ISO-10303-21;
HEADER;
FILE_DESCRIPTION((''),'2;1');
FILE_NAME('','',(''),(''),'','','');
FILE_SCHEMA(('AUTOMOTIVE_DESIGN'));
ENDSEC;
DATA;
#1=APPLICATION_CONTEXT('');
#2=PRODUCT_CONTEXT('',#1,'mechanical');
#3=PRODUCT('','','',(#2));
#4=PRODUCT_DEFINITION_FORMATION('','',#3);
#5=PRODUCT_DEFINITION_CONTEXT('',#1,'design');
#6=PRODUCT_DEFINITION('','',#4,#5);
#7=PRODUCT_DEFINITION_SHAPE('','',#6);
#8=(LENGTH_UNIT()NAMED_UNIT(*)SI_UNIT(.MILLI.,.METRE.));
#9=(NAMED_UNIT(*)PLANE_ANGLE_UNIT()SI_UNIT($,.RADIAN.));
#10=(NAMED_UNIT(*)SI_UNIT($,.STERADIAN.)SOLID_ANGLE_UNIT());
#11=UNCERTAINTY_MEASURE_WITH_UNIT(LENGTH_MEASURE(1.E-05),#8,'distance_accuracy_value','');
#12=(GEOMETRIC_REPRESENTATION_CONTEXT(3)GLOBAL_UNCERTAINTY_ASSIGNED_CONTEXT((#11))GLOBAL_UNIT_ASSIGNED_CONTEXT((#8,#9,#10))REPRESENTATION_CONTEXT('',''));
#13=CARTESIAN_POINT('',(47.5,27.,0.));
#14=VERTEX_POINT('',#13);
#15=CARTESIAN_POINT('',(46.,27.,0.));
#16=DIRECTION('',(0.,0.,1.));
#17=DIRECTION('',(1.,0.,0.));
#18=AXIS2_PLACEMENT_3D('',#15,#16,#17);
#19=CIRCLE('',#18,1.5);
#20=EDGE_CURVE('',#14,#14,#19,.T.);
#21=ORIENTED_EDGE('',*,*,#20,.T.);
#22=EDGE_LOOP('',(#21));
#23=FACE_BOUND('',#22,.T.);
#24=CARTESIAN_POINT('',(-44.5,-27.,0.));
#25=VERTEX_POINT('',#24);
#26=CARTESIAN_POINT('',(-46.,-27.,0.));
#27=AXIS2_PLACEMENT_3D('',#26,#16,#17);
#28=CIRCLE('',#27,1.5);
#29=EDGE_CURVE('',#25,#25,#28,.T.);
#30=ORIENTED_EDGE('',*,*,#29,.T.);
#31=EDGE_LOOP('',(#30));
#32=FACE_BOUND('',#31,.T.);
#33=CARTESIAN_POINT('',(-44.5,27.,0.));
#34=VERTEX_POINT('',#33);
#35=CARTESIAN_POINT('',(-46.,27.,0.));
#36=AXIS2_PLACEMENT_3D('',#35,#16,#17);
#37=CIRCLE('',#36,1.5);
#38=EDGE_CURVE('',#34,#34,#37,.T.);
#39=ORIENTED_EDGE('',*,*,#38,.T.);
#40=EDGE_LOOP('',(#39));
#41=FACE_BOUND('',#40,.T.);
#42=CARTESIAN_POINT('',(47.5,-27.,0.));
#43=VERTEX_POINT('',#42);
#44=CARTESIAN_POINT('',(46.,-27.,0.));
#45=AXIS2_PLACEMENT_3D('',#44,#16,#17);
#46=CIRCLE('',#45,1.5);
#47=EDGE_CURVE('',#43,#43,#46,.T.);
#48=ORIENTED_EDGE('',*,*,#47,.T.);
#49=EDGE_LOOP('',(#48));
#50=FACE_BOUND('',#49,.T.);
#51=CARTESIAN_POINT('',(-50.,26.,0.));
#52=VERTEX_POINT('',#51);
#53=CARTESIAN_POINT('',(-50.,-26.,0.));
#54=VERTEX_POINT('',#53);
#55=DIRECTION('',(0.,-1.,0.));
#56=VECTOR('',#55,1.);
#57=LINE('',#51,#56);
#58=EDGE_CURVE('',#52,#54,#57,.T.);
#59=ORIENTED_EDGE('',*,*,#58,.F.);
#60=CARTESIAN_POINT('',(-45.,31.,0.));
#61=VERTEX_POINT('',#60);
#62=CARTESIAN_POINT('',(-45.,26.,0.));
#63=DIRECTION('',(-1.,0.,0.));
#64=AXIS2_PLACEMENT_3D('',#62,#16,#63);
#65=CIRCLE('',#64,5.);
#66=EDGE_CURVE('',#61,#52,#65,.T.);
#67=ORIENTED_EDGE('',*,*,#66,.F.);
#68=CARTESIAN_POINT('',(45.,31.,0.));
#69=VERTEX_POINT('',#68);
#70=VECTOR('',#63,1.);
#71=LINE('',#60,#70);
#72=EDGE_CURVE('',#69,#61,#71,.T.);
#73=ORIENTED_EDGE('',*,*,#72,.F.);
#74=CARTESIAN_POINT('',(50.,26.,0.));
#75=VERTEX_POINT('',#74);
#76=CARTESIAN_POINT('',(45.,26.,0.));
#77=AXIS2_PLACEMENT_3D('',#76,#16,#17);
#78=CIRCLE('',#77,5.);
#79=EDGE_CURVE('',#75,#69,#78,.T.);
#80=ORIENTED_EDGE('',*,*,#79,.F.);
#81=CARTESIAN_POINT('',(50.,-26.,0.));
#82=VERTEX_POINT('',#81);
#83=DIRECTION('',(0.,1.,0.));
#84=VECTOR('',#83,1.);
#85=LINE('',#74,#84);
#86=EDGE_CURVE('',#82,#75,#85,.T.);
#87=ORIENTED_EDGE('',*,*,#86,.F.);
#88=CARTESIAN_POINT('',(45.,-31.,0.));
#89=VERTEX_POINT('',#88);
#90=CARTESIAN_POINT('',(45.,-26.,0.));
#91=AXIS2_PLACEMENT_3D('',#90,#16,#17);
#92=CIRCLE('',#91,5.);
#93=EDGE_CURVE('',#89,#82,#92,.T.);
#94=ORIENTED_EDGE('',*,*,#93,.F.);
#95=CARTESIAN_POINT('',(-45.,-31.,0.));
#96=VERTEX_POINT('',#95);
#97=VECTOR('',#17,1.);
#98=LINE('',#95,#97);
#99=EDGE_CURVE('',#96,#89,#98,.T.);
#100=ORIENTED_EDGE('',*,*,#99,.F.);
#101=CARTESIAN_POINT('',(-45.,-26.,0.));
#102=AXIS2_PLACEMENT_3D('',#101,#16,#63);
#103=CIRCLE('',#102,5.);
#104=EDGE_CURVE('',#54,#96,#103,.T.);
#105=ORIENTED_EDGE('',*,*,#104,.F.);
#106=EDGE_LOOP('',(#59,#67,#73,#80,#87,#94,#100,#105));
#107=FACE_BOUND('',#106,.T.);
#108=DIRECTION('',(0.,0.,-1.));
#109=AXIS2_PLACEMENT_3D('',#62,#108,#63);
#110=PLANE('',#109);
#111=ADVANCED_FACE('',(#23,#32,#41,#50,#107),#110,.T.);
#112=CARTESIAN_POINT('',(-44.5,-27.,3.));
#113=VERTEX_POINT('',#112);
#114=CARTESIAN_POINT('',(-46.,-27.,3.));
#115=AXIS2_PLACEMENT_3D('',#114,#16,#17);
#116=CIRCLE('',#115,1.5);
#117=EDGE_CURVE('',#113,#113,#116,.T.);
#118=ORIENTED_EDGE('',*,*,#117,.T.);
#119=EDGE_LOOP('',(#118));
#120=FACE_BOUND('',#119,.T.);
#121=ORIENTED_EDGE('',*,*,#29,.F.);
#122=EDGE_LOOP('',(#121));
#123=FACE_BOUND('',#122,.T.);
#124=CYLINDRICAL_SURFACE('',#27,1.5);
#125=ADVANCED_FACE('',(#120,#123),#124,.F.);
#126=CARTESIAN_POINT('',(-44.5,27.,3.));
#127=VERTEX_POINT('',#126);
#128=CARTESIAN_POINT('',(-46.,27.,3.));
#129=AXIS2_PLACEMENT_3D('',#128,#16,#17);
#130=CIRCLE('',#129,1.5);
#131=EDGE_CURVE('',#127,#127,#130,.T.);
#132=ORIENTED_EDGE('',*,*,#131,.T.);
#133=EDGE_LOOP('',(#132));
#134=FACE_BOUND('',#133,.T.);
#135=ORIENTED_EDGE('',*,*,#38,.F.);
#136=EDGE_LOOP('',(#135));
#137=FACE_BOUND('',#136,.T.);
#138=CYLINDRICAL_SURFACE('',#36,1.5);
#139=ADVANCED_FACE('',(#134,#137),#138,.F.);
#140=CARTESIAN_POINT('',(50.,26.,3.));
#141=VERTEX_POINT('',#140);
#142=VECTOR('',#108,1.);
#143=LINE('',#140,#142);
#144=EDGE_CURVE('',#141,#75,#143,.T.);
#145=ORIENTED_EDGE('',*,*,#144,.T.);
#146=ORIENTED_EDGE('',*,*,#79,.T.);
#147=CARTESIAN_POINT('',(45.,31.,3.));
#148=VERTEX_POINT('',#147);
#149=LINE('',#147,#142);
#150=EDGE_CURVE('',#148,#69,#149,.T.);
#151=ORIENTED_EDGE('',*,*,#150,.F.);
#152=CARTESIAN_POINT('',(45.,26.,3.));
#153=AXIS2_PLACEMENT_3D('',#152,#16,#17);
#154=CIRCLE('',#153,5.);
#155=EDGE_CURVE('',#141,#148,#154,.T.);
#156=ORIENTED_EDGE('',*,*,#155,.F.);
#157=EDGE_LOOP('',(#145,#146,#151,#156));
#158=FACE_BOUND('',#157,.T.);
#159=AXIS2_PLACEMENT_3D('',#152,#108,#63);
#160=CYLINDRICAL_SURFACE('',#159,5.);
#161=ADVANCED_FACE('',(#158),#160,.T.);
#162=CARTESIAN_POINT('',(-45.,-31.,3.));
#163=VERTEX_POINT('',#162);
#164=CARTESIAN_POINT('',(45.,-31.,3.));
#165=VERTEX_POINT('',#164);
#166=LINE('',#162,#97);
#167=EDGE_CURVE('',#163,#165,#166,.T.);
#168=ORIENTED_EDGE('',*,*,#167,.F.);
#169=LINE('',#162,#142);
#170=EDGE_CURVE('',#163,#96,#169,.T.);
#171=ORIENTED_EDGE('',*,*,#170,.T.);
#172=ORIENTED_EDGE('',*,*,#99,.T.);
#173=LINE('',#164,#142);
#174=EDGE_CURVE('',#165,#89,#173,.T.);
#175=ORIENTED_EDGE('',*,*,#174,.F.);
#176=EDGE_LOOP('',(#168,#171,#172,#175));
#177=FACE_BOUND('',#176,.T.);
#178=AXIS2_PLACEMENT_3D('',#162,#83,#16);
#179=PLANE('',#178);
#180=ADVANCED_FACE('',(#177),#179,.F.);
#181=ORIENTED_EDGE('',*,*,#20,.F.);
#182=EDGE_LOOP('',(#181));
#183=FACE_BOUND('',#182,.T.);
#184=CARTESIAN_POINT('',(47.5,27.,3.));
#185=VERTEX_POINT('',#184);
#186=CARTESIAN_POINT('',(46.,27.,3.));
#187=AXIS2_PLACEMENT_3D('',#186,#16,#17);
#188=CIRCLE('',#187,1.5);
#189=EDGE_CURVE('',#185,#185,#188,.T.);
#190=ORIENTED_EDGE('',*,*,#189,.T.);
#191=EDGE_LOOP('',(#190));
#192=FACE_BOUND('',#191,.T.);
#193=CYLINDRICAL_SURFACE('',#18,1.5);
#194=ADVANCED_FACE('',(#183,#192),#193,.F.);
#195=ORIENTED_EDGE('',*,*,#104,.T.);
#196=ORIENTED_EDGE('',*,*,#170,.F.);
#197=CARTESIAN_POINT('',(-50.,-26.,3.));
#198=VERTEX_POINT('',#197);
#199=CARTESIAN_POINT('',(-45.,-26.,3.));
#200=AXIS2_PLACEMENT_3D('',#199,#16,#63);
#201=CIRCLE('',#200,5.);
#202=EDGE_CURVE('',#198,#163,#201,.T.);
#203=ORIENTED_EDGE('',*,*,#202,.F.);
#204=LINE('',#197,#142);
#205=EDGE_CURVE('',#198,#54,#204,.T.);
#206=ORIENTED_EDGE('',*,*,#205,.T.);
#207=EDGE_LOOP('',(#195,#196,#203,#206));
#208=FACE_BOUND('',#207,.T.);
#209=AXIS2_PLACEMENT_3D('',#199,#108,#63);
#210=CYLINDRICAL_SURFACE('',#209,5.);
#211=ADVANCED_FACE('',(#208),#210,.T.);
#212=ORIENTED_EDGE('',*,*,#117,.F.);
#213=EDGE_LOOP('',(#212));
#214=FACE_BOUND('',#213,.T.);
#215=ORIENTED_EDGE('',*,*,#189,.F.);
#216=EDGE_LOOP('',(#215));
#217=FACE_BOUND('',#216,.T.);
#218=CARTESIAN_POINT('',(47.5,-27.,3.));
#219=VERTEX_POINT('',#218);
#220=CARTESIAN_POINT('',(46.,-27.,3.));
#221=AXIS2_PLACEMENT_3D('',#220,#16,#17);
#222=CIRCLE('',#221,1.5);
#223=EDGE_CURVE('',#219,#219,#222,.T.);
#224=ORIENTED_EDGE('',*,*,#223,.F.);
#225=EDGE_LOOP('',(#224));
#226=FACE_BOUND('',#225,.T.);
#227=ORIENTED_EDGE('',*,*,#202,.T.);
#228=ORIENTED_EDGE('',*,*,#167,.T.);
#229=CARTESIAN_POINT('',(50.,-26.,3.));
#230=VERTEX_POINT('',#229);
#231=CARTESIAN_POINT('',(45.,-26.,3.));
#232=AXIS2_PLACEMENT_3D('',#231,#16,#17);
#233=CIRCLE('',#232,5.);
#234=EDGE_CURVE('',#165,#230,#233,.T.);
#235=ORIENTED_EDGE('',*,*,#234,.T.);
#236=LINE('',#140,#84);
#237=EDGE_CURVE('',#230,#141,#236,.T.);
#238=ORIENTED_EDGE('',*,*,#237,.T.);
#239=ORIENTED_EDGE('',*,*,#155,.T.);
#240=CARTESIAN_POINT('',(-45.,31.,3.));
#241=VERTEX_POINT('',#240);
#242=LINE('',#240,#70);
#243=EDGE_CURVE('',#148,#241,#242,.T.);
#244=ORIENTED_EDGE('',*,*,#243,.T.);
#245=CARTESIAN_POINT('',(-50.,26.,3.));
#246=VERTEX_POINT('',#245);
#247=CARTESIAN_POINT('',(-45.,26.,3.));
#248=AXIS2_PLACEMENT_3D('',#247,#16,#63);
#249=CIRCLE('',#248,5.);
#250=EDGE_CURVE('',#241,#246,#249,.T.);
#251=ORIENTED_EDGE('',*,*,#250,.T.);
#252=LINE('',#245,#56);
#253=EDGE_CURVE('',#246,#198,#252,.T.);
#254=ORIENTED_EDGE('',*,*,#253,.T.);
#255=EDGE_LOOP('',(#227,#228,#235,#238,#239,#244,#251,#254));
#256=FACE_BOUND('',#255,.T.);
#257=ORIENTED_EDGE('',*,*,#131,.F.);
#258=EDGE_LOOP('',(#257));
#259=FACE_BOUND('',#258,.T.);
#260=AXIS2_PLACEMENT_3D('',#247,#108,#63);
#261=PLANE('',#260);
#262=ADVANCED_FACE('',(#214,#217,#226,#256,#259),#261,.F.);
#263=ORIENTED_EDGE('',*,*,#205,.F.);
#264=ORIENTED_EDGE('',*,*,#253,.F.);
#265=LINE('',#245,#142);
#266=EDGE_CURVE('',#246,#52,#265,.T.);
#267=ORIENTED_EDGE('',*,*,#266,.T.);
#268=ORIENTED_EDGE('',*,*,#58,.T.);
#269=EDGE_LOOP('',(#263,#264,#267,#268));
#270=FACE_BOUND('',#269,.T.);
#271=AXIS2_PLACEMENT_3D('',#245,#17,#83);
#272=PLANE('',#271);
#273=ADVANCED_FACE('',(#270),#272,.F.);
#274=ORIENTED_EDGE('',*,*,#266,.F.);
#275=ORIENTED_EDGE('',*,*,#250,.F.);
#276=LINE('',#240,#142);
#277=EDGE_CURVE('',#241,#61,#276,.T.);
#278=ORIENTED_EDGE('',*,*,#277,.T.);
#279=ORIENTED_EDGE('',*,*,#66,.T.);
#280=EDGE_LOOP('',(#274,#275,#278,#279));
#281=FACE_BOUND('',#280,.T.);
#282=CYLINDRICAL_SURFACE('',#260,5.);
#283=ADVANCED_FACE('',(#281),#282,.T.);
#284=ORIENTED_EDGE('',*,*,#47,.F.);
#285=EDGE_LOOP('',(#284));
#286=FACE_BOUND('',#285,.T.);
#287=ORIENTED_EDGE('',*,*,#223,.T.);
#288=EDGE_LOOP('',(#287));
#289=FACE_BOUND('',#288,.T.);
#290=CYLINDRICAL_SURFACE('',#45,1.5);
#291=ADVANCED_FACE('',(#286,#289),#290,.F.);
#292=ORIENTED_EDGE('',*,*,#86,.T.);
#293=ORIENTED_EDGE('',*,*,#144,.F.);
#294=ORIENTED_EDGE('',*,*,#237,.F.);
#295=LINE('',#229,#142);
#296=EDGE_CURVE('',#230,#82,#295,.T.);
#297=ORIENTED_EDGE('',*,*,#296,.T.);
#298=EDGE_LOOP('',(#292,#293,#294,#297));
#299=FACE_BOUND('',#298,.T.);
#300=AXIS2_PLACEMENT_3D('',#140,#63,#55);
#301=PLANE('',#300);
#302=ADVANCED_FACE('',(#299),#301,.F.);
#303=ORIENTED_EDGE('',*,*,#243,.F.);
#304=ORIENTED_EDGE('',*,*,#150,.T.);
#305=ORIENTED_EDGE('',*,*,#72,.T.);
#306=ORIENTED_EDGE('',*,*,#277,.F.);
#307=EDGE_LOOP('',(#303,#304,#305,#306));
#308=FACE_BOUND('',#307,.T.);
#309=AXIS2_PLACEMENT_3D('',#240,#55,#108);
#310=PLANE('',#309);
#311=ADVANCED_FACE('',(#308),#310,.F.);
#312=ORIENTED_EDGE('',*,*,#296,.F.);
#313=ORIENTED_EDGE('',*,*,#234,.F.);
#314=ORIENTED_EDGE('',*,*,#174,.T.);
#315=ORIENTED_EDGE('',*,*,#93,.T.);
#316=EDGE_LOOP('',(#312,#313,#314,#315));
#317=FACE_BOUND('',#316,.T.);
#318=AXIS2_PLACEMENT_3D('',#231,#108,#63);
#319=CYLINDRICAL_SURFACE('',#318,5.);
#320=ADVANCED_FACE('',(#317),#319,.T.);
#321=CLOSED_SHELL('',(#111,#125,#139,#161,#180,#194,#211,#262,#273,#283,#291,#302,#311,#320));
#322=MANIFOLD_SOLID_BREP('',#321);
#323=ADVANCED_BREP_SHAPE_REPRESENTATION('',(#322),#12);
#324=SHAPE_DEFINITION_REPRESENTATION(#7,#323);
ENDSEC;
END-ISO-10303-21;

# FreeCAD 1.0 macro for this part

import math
import FreeCAD as App
import Part
import Sketcher
Q = App.Units.Quantity

doc = App.newDocument("Part")
body = doc.addObject("PartDesign::Body", "Body")

# Sketch on XY plane
sketch1 = doc.addObject("Sketcher::SketchObject", "Sketch")
body.addObject(sketch1)
sketch1.AttachmentSupport = (doc.XY_Plane, [""])
sketch1.MapMode = "FlatFace"
sketch1.addGeometry(Part.LineSegment(App.Vector(45, 31, 0), App.Vector(-45, 31, 0)), False)
sketch1.addGeometry(Part.ArcOfCircle(Part.Circle(App.Vector(-45, 26, 0), App.Vector(0, 0, 1), 5), math.radians(90), math.radians(180)), False)
sketch1.addGeometry(Part.LineSegment(App.Vector(-50, 26, 0), App.Vector(-50, -26, 0)), False)
sketch1.addGeometry(Part.ArcOfCircle(Part.Circle(App.Vector(-45, -26, 0), App.Vector(0, 0, 1), 5), math.radians(180), math.radians(270)), False)
sketch1.addGeometry(Part.LineSegment(App.Vector(-45, -31, 0), App.Vector(45, -31, 0)), False)
sketch1.addGeometry(Part.ArcOfCircle(Part.Circle(App.Vector(45, -26, 0), App.Vector(0, 0, 1), 5), math.radians(-90), math.radians(0)), False)
sketch1.addGeometry(Part.LineSegment(App.Vector(50, -26, 0), App.Vector(50, 26, 0)), False)
sketch1.addGeometry(Part.ArcOfCircle(Part.Circle(App.Vector(45, 26, 0), App.Vector(0, 0, 1), 5), math.radians(0), math.radians(90)), False)
sketch1.addConstraint(Sketcher.Constraint("Tangent", 0, 2, 1, 1))
sketch1.addConstraint(Sketcher.Constraint("Tangent", 1, 2, 2, 1))
sketch1.addConstraint(Sketcher.Constraint("Tangent", 2, 2, 3, 1))
sketch1.addConstraint(Sketcher.Constraint("Tangent", 3, 2, 4, 1))
sketch1.addConstraint(Sketcher.Constraint("Tangent", 4, 2, 5, 1))
sketch1.addConstraint(Sketcher.Constraint("Tangent", 5, 2, 6, 1))
sketch1.addConstraint(Sketcher.Constraint("Tangent", 6, 2, 7, 1))
sketch1.addConstraint(Sketcher.Constraint("Tangent", 7, 2, 0, 1))
sketch1.addConstraint(Sketcher.Constraint("Horizontal", 0))
sketch1.addConstraint(Sketcher.Constraint("Vertical", 2))
sketch1.addConstraint(Sketcher.Constraint("Horizontal", 4))
sketch1.addConstraint(Sketcher.Constraint("Vertical", 6))
sketch1.addConstraint(Sketcher.Constraint("Equal", 1, 3))
sketch1.addConstraint(Sketcher.Constraint("Equal", 3, 5))
sketch1.addConstraint(Sketcher.Constraint("Equal", 5, 7))
sketch1.addConstraint(Sketcher.Constraint("Symmetric", 1, 3, 5, 3, -1, 1))
sketch1.addConstraint(Sketcher.Constraint("Radius", 1, Q("5 mm")))
sketch1.addConstraint(Sketcher.Constraint("DistanceX", 0, 2, 0, 1, Q("90 mm")))
sketch1.addConstraint(Sketcher.Constraint("DistanceY", 2, 2, 2, 1, Q("52 mm")))
pad1 = doc.addObject("PartDesign::Pad", "Pad")
body.addObject(pad1)
pad1.Profile = sketch1
pad1.Length = 3

# Sketch on XY plane
sketch2 = doc.addObject("Sketcher::SketchObject", "Sketch001")
body.addObject(sketch2)
sketch2.AttachmentSupport = (doc.XY_Plane, [""])
sketch2.MapMode = "FlatFace"
sketch2.AttachmentOffset = App.Placement(App.Vector(0, 0, 3), App.Rotation())
sketch2.addGeometry(Part.Circle(App.Vector(-46, 27, 0), App.Vector(0, 0, 1), 1.5), False)
sketch2.addGeometry(Part.Circle(App.Vector(46, 27, 0), App.Vector(0, 0, 1), 1.5), False)
sketch2.addGeometry(Part.Circle(App.Vector(-46, -27, 0), App.Vector(0, 0, 1), 1.5), False)
sketch2.addGeometry(Part.Circle(App.Vector(46, -27, 0), App.Vector(0, 0, 1), 1.5), False)
sketch2.addConstraint(Sketcher.Constraint("Equal", 0, 1))
sketch2.addConstraint(Sketcher.Constraint("Equal", 1, 2))
sketch2.addConstraint(Sketcher.Constraint("Equal", 2, 3))
sketch2.addConstraint(Sketcher.Constraint("Symmetric", 1, 3, 2, 3, -1, 1))
sketch2.addConstraint(Sketcher.Constraint("Symmetric", 0, 3, 3, 3, -1, 1))
sketch2.addConstraint(Sketcher.Constraint("Symmetric", 0, 3, 1, 3, -2))
sketch2.addConstraint(Sketcher.Constraint("Diameter", 0, Q("3 mm")))
sketch2.addConstraint(Sketcher.Constraint("DistanceX", 0, 3, -1, 1, Q("46 mm")))
sketch2.addConstraint(Sketcher.Constraint("DistanceY", -1, 1, 0, 3, Q("27 mm")))
pocket1 = doc.addObject("PartDesign::Pocket", "Pocket")
body.addObject(pocket1)
pocket1.Profile = sketch2
pocket1.Length = 3

doc.recompute()
